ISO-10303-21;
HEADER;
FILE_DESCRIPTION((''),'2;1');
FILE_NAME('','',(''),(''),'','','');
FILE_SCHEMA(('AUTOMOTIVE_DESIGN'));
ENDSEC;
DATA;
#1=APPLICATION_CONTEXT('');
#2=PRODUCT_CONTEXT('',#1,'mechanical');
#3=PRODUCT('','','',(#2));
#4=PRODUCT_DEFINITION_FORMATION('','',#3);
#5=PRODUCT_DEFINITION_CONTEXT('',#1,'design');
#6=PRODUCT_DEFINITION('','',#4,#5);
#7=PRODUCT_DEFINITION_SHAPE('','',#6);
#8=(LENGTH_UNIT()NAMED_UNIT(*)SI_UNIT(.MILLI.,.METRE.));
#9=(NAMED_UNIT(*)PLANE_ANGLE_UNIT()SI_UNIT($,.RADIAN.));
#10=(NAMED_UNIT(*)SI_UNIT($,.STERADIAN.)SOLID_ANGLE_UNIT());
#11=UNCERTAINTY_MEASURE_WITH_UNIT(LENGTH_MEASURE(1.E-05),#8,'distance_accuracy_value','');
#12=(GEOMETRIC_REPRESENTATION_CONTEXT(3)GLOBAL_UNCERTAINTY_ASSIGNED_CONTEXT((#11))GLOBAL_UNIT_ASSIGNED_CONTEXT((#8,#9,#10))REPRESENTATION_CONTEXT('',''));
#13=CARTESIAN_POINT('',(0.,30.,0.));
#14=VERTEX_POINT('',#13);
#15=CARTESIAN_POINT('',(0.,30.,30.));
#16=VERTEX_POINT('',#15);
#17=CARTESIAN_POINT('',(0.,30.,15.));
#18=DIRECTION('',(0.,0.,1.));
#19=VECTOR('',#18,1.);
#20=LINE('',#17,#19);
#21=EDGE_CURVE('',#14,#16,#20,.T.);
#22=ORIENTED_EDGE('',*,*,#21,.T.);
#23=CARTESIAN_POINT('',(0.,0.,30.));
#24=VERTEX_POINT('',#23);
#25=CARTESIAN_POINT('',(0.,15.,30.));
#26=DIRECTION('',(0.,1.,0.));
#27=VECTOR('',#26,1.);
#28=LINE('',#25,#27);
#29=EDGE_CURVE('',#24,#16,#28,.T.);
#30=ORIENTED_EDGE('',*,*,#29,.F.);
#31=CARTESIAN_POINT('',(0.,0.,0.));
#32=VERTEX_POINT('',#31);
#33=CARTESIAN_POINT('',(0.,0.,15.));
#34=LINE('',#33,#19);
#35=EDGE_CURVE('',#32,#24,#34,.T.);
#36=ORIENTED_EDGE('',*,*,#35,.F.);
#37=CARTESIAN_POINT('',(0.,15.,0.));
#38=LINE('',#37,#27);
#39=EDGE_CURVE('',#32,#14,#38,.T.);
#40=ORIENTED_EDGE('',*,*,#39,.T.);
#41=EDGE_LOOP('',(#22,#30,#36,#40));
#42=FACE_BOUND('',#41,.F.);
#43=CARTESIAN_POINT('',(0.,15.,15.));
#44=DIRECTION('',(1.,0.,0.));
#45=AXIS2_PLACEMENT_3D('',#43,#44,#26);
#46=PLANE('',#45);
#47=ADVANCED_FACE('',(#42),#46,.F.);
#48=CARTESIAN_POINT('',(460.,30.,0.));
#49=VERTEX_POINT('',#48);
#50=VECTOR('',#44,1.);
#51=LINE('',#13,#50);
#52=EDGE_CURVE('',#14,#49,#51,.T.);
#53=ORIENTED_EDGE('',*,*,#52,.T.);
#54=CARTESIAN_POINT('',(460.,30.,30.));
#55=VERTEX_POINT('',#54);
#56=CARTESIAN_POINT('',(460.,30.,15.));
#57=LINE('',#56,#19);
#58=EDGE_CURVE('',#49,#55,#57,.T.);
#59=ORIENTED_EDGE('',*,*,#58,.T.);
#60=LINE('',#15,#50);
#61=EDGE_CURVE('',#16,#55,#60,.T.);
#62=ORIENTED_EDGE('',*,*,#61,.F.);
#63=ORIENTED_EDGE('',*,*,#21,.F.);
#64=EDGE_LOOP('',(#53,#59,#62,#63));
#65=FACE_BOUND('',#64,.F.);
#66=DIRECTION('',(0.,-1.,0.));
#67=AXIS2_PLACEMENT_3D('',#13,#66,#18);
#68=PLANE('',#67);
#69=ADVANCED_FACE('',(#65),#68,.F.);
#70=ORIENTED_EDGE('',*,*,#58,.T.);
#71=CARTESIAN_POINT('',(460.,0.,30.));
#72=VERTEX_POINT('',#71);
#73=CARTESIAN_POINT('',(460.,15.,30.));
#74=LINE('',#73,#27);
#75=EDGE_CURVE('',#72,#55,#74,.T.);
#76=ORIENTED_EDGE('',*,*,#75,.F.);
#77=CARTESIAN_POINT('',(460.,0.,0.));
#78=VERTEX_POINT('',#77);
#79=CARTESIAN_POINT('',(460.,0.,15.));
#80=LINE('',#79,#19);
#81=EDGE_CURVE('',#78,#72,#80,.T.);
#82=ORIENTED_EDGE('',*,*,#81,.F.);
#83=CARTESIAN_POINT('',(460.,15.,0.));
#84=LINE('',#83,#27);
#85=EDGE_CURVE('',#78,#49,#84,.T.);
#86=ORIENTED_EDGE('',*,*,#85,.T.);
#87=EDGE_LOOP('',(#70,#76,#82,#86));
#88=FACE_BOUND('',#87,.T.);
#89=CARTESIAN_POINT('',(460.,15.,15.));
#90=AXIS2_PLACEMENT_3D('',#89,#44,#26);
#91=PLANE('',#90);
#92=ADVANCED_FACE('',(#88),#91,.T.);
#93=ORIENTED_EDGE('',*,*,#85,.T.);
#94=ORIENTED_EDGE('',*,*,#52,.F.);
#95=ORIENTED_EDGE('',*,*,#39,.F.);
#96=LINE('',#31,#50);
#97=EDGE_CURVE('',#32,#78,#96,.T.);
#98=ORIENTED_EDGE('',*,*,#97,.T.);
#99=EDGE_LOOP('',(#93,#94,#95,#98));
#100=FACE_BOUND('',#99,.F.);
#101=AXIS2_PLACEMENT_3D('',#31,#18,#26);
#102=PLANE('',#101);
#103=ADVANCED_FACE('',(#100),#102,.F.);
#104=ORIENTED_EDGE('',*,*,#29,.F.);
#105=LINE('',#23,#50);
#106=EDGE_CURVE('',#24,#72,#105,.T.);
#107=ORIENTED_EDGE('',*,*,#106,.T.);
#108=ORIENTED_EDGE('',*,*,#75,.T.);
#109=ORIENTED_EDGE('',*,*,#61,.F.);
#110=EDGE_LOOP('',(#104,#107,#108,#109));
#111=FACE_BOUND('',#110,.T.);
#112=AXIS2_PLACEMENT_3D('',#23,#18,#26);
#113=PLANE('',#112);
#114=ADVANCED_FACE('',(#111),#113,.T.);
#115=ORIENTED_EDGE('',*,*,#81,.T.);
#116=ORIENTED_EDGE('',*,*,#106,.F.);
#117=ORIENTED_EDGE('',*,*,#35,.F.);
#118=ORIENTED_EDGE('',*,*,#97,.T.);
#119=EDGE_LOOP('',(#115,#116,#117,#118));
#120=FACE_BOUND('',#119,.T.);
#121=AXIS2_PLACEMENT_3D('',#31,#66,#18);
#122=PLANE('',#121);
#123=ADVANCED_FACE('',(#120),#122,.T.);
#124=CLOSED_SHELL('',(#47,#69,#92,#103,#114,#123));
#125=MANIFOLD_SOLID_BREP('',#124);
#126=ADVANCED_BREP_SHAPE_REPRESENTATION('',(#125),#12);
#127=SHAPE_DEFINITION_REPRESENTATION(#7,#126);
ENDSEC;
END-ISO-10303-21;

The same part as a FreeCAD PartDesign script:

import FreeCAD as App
import Part
import Sketcher


def add_polygon(sketch, points):
    """Adds a closed chain of lines whose ends are joined by coincident constraints."""
    first, n = sketch.GeometryCount, len(points)
    for a, b in zip(points, points[1:] + points[:1]):
        sketch.addGeometry(Part.LineSegment(App.Vector(*a, 0), App.Vector(*b, 0)), False)
    for i in range(n):
        sketch.addConstraint(Sketcher.Constraint("Coincident", first + i, 2, first + (i + 1) % n, 1))

doc = App.newDocument("Part")
body = doc.addObject("PartDesign::Body", "Body")

sketch1 = body.newObject("Sketcher::SketchObject", "Sketch")
sketch1.AttachmentSupport = (doc.getObject("YZ_Plane"), [""])
sketch1.MapMode = "FlatFace"
add_polygon(sketch1, [(0, 30), (0, 0), (30, 0), (30, 30)])
sketch1.addConstraint([
    Sketcher.Constraint("Vertical", 0),
    Sketcher.Constraint("Horizontal", 1),
    Sketcher.Constraint("Vertical", 2),
    Sketcher.Constraint("Horizontal", 3),
    Sketcher.Constraint("Coincident", 0, 2, -1, 1),
    Sketcher.Constraint("Equal", 3, 0),
    Sketcher.Constraint("DistanceX", 1, 1, 1, 2, 30.0),
])
pad1 = body.newObject("PartDesign::Pad", "Pad")
pad1.Profile = sketch1
pad1.Length = 460

doc.recompute()
